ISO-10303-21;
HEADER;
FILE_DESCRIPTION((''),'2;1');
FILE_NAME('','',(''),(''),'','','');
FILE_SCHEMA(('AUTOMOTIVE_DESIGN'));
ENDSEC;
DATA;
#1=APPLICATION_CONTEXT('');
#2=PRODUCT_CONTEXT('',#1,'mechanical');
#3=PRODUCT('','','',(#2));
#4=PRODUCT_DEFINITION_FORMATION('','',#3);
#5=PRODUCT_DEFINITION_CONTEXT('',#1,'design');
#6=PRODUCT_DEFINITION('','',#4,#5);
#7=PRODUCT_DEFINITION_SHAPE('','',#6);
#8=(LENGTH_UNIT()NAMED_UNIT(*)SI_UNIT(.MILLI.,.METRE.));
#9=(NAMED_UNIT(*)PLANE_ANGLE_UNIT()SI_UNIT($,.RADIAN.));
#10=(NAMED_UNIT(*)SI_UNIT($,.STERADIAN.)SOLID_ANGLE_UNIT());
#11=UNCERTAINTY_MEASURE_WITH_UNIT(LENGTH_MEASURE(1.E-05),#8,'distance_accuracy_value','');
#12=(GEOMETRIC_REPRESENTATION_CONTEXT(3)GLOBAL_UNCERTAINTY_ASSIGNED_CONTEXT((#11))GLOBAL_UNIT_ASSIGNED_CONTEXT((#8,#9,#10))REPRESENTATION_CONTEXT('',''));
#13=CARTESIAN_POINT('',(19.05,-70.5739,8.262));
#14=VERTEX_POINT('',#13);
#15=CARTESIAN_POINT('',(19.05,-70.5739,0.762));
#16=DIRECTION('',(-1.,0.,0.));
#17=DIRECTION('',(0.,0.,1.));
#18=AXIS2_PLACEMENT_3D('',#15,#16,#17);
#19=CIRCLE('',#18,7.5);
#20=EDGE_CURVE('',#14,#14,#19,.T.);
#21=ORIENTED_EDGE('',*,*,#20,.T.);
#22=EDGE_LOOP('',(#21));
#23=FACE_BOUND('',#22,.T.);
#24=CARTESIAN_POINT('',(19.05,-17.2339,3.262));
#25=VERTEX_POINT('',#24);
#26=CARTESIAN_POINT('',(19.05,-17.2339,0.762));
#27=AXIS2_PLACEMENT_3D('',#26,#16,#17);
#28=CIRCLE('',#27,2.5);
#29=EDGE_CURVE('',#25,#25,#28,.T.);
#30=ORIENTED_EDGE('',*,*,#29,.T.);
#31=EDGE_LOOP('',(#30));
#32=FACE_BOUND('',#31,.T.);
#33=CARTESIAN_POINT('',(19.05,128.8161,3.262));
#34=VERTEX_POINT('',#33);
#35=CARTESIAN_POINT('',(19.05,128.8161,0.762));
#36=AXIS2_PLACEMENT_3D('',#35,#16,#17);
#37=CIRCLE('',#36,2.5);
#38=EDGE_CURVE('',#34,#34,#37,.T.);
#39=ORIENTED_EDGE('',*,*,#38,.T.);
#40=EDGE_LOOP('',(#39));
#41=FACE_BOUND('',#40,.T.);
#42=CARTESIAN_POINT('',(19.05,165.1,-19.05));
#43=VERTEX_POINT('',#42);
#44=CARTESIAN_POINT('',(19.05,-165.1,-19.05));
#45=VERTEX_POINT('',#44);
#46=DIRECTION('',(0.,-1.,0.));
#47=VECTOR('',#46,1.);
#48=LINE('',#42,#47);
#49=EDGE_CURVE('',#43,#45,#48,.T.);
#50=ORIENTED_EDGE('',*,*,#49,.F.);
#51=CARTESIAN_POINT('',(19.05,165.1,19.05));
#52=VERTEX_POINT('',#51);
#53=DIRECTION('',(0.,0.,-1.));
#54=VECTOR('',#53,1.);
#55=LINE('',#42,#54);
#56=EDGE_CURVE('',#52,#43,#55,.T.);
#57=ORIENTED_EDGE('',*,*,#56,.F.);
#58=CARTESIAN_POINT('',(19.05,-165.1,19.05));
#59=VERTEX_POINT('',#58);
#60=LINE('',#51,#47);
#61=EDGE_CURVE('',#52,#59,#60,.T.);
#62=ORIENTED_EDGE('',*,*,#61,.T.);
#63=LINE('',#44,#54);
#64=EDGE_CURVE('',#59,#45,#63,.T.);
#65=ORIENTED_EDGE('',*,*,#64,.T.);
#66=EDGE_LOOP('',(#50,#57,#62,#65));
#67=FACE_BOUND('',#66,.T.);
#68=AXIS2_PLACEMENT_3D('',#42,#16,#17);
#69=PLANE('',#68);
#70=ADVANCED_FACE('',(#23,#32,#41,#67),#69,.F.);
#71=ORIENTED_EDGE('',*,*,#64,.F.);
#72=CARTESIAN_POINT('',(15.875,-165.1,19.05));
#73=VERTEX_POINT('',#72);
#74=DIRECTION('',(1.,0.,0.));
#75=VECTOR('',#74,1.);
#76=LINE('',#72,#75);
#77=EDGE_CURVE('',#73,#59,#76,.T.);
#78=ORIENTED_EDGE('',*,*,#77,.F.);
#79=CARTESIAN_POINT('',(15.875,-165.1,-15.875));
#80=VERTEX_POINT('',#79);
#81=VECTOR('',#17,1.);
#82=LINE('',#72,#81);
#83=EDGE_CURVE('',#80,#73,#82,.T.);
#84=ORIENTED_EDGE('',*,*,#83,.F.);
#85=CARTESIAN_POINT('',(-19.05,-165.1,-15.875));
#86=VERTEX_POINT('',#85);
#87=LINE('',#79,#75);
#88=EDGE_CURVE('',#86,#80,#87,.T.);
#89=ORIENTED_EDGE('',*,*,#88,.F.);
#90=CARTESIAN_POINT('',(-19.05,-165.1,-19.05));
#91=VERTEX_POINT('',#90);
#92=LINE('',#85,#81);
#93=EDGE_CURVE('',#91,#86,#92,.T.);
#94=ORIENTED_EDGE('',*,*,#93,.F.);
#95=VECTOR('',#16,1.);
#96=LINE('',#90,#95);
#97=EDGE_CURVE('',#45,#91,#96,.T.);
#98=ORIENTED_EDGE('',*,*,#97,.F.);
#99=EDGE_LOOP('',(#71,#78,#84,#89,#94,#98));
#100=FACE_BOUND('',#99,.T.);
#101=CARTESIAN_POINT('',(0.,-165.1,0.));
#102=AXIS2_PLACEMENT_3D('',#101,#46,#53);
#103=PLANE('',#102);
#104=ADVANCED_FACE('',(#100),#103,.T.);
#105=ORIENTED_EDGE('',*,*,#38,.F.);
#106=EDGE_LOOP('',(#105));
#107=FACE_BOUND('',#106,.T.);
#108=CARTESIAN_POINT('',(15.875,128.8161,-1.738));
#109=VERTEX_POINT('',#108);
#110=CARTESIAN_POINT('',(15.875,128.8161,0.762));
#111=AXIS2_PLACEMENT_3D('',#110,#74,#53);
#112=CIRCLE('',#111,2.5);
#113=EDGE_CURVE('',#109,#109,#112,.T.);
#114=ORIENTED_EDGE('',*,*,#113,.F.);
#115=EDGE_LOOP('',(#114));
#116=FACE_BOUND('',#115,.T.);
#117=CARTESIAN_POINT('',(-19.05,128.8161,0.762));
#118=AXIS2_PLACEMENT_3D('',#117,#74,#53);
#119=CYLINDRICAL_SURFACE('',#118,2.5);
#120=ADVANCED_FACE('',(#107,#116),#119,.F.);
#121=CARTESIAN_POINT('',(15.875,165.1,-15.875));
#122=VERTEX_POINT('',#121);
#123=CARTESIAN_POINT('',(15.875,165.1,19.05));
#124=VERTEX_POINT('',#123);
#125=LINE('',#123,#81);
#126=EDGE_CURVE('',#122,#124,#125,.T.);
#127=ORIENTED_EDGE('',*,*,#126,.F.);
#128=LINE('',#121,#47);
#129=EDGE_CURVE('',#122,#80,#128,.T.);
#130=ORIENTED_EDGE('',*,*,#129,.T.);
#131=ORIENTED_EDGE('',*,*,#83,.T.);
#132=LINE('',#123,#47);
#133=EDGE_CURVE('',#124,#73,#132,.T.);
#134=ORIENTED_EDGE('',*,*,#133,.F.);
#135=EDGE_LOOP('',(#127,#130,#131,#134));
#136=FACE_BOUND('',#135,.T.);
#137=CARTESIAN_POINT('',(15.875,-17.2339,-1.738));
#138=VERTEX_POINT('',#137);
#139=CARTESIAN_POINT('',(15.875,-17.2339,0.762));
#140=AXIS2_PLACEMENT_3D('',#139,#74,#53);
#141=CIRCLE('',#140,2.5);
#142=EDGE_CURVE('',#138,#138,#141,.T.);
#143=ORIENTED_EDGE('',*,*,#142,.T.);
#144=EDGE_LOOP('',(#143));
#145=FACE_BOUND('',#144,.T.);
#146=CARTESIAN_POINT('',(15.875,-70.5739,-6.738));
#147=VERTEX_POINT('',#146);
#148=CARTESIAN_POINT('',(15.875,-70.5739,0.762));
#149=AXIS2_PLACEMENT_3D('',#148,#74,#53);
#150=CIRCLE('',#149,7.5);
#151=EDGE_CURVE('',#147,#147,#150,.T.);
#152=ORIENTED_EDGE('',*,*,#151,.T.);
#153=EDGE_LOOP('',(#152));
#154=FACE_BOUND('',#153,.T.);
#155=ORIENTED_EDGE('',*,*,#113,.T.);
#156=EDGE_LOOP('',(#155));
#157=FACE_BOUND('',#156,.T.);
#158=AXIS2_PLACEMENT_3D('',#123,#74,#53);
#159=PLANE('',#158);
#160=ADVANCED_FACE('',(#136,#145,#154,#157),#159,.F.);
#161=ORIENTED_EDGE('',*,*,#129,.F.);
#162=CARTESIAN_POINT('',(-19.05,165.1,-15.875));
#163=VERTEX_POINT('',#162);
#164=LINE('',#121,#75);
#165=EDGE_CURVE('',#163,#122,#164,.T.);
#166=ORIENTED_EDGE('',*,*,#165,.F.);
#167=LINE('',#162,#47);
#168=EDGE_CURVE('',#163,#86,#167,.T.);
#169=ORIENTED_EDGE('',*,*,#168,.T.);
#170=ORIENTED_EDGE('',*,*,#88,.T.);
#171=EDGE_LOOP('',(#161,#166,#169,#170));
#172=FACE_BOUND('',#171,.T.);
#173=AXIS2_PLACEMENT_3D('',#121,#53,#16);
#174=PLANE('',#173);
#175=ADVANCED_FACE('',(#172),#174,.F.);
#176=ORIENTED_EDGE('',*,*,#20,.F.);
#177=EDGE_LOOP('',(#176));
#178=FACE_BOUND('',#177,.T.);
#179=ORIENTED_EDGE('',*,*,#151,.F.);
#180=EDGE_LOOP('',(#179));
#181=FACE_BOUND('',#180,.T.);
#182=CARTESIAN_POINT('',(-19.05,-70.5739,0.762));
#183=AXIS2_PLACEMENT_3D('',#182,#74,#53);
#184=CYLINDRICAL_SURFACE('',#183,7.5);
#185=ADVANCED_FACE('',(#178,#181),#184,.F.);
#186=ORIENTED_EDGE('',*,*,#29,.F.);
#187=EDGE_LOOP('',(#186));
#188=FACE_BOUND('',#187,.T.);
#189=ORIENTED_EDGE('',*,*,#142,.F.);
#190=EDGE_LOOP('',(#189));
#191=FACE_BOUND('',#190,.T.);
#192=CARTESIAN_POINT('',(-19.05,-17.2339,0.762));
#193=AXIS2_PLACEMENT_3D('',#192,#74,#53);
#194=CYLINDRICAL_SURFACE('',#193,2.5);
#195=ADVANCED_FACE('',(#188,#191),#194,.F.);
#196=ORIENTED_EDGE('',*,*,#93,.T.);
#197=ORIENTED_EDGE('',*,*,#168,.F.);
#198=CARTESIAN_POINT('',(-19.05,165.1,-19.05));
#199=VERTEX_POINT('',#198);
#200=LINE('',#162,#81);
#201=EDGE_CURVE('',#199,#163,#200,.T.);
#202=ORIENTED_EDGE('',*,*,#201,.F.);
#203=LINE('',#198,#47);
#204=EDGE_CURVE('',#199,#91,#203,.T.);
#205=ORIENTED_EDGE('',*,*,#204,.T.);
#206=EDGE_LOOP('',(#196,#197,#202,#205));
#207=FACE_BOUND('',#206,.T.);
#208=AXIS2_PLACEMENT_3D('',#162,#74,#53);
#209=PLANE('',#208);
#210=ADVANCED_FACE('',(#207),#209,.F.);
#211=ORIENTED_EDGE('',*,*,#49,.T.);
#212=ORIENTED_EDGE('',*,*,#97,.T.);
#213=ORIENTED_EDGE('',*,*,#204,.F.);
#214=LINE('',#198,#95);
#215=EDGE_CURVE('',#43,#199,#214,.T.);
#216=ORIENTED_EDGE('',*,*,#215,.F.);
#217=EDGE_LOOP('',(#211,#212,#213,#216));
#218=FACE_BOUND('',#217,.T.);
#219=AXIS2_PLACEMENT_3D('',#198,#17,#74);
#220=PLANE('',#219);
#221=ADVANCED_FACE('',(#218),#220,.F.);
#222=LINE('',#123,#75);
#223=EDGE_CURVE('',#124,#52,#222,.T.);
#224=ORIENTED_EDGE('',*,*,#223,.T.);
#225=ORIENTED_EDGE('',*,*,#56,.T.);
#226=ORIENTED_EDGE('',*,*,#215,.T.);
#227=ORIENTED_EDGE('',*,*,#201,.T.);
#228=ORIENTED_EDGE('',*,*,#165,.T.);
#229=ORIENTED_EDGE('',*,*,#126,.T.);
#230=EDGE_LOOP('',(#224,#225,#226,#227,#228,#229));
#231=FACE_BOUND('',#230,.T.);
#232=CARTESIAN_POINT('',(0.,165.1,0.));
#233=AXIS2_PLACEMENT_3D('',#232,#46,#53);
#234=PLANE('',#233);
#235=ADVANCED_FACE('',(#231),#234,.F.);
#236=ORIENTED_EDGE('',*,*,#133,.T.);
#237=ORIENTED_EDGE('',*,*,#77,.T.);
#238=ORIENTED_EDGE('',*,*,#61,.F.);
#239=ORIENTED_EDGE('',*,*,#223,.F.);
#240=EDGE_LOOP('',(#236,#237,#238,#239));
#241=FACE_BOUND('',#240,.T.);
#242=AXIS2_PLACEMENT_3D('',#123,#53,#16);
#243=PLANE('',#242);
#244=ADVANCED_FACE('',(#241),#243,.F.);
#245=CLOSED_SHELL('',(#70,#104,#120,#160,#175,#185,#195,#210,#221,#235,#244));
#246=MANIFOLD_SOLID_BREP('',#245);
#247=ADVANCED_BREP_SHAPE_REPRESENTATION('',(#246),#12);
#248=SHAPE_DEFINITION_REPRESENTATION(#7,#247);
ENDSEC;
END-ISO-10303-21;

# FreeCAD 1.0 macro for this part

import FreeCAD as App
import Part
import Sketcher

V = App.Vector
Q = App.Units.Quantity

doc = App.newDocument("Part")
params = doc.addObject("Spreadsheet::Sheet", "Params")
for row, (alias, value) in enumerate([
    ("sketch1_width", "1.5 in"),
    ("sketch1_width2", "0.125 in"),
    ("pad1_length", "13 in"),
], start=1):
    params.set(f"A{row}", alias)
    params.set(f"B{row}", "=" + value)
    params.setAlias(f"B{row}", alias)

body = doc.addObject("PartDesign::Body", "Body")

sketch1 = doc.addObject("Sketcher::SketchObject", "Sketch")
body.addObject(sketch1)
sketch1.AttachmentSupport = (doc.XZ_Plane, [""])
sketch1.MapMode = "FlatFace"
sketch1.addGeometry([
    Part.LineSegment(V(15.9, -15.9, 0), V(15.9, 19.1, 0)),
    Part.LineSegment(V(15.9, 19.1, 0), V(19.1, 19.1, 0)),
    Part.LineSegment(V(19.1, 19.1, 0), V(19.1, -19.1, 0)),
    Part.LineSegment(V(19.1, -19.1, 0), V(-19.1, -19.1, 0)),
    Part.LineSegment(V(-19.1, -19.1, 0), V(-19.1, -15.9, 0)),
    Part.LineSegment(V(-19.1, -15.9, 0), V(15.9, -15.9, 0)),
], False)
sketch1.addConstraint([
    Sketcher.Constraint("Coincident", 0, 2, 1, 1),
    Sketcher.Constraint("Coincident", 1, 2, 2, 1),
    Sketcher.Constraint("Coincident", 2, 2, 3, 1),
    Sketcher.Constraint("Coincident", 3, 2, 4, 1),
    Sketcher.Constraint("Coincident", 4, 2, 5, 1),
    Sketcher.Constraint("Coincident", 5, 2, 0, 1),
    Sketcher.Constraint("Vertical", 0),
    Sketcher.Constraint("Horizontal", 1),
    Sketcher.Constraint("Vertical", 2),
    Sketcher.Constraint("Horizontal", 3),
    Sketcher.Constraint("Vertical", 4),
    Sketcher.Constraint("Horizontal", 5),
    Sketcher.Constraint("Symmetric", 1, 2, 3, 2, -1, 1),
    Sketcher.Constraint("Equal", 5, 0),
    Sketcher.Constraint("Equal", 3, 2),
    Sketcher.Constraint("DistanceX", 3, 2, 3, 1, Q("1.5 in")),
    Sketcher.Constraint("DistanceX", 1, 1, 1, 2, Q("0.125 in")),
])
sketch1.setExpression("Constraints[15]", "Params.sketch1_width")
sketch1.setExpression("Constraints[16]", "Params.sketch1_width2")
pad1 = doc.addObject("PartDesign::Pad", "Pad")
body.addObject(pad1)
pad1.Profile = sketch1
pad1.setExpression("Length", "Params.pad1_length")
pad1.Midplane = True

sketch2 = doc.addObject("Sketcher::SketchObject", "Sketch001")
body.addObject(sketch2)
sketch2.AttachmentSupport = (doc.YZ_Plane, [""])
sketch2.MapMode = "FlatFace"
sketch2.AttachmentOffset = App.Placement(V(0, 0, 0.75 * 25.4), App.Rotation())
sketch2.addGeometry([
    Part.Circle(V(128.8, 32.7, 0), V(0, 0, 1), 2.5),
    Part.Circle(V(201.4, 32.7, 0), V(0, 0, 1), 7.5),
    Part.Circle(V(-17.2, 32.7, 0), V(0, 0, 1), 2.5),
    Part.Circle(V(-70.6, 32.7, 0), V(0, 0, 1), 7.5),
    Part.Circle(V(-70.6, 0.8, 0), V(0, 0, 1), 7.5),
    Part.Circle(V(201.4, 0.8, 0), V(0, 0, 1), 7.5),
    Part.Circle(V(128.8, 0.8, 0), V(0, 0, 1), 2.5),
    Part.Circle(V(-17.2, 0.8, 0), V(0, 0, 1), 2.5),
], False)
sketch2.addConstraint([
    Sketcher.Constraint("Equal", 0, 2),
    Sketcher.Constraint("Equal", 1, 3),
    Sketcher.Constraint("Equal", 3, 4),
    Sketcher.Constraint("Equal", 4, 5),
    Sketcher.Constraint("Equal", 2, 6),
    Sketcher.Constraint("Equal", 6, 7),
    Sketcher.Constraint("Horizontal", 0, 3, 1, 3),
    Sketcher.Constraint("Horizontal", 1, 3, 2, 3),
    Sketcher.Constraint("Horizontal", 2, 3, 3, 3),
    Sketcher.Constraint("Horizontal", 4, 3, 5, 3),
    Sketcher.Constraint("Horizontal", 5, 3, 6, 3),
    Sketcher.Constraint("Horizontal", 6, 3, 7, 3),
    Sketcher.Constraint("Vertical", 3, 3, 4, 3),
    Sketcher.Constraint("Vertical", 1, 3, 5, 3),
    Sketcher.Constraint("Vertical", 0, 3, 6, 3),
    Sketcher.Constraint("Vertical", 2, 3, 7, 3),
    Sketcher.Constraint("DistanceX", 3, 3, 2, 3, Q("2.1 in")),
    Sketcher.Constraint("Diameter", 0, Q("5 mm")),
    Sketcher.Constraint("Diameter", 1, Q("15 mm")),
    Sketcher.Constraint("DistanceY", -1, 1, 4, 3, Q("0.03 in")),
    Sketcher.Constraint("DistanceX", 2, 3, 0, 3, Q("5.75 in")),
    Sketcher.Constraint("DistanceX", 0, 3, 1, 3, Q("2.857 in")),
    Sketcher.Constraint("DistanceX", -1, 1, 0, 3, Q("5.0715 in")),
    Sketcher.Constraint("DistanceY", -1, 1, 0, 3, Q("32.722 mm")),
])
pocket1 = doc.addObject("PartDesign::Pocket", "Pocket")
body.addObject(pocket1)
pocket1.Profile = sketch2
pocket1.Type = "ThroughAll"
pocket1.Midplane = True

doc.recompute()
